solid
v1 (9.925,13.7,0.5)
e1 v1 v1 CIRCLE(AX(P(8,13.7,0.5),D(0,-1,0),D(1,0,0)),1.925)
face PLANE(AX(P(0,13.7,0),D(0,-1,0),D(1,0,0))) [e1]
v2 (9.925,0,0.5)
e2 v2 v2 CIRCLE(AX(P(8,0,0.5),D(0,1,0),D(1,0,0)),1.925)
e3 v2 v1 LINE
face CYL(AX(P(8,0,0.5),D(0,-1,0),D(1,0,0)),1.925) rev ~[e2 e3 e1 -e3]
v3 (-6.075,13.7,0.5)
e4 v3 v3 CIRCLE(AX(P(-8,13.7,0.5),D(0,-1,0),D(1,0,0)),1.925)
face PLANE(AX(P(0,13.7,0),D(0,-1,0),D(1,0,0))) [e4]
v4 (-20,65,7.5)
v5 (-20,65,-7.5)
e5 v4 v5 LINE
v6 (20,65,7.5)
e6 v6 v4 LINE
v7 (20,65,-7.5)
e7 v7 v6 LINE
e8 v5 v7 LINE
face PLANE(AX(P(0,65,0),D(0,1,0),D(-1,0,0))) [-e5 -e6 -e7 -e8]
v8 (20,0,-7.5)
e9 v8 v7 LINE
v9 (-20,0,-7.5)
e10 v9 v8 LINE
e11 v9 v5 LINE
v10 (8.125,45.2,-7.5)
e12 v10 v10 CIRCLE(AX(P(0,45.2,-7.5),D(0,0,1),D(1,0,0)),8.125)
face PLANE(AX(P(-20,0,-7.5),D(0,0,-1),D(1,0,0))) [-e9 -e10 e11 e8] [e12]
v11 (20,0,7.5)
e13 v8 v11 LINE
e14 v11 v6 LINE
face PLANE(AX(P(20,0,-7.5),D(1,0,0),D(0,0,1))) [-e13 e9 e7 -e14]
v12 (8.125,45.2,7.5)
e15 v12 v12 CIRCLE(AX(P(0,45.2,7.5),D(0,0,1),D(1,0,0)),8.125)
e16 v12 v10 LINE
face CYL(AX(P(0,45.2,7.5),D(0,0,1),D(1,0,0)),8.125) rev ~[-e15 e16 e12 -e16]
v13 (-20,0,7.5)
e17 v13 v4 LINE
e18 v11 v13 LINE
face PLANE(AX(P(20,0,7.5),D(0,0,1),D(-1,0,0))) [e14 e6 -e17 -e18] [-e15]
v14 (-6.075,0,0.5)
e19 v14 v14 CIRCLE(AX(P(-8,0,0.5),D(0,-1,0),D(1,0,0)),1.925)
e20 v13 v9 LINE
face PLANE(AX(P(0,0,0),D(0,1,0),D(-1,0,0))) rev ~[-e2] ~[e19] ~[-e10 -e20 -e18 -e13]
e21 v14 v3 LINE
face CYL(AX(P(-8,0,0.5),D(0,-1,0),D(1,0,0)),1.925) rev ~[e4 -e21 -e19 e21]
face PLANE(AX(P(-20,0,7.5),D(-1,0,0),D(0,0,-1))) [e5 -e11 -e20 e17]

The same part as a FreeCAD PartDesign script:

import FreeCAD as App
import Part
import Sketcher
from FreeCAD import Vector
Q = App.Units.Quantity

doc = App.newDocument("Part")
params = doc.addObject("Spreadsheet::Sheet", "Params")
for row, (alias, value) in enumerate([
    ("sketch1_width", "40 mm"),
    ("sketch1_height", "15 mm"),
    ("pad1_length", "65 mm"),
    ("sketch2_diameter", "3.85 mm"),
    ("pocket1_length", "13.7 mm"),
    ("sketch3_diameter", "16.25 mm"),
    ("pocket2_length", "20 mm"),
], start=1):
    params.set(f"A{row}", alias)
    params.set(f"B{row}", "=" + value)
    params.setAlias(f"B{row}", alias)

body = doc.addObject("PartDesign::Body", "Body")

# Sketch on XZ plane
sketch1 = doc.addObject("Sketcher::SketchObject", "Sketch")
body.addObject(sketch1)
sketch1.AttachmentSupport = (doc.XZ_Plane, [""])
sketch1.MapMode = "FlatFace"
sketch1.addGeometry([
    Part.LineSegment(Vector(20, -7.5, 0), Vector(-20, -7.5, 0)),
    Part.LineSegment(Vector(-20, -7.5, 0), Vector(-20, 7.5, 0)),
    Part.LineSegment(Vector(-20, 7.5, 0), Vector(20, 7.5, 0)),
    Part.LineSegment(Vector(20, 7.5, 0), Vector(20, -7.5, 0)),
], False)
sketch1.addConstraint([
    Sketcher.Constraint("Coincident", 0, 2, 1, 1),
    Sketcher.Constraint("Coincident", 1, 2, 2, 1),
    Sketcher.Constraint("Coincident", 2, 2, 3, 1),
    Sketcher.Constraint("Coincident", 3, 2, 0, 1),
    Sketcher.Constraint("Horizontal", 0),
    Sketcher.Constraint("Vertical", 1),
    Sketcher.Constraint("Horizontal", 2),
    Sketcher.Constraint("Vertical", 3),
    Sketcher.Constraint("Symmetric", 0, 2, 2, 2, -1, 1),
    Sketcher.Constraint("DistanceX", 0, 2, 0, 1, Q("40 mm")),
    Sketcher.Constraint("DistanceY", 1, 1, 1, 2, Q("15 mm")),
])
sketch1.setExpression("Constraints[9]", "Params.sketch1_width")
sketch1.setExpression("Constraints[10]", "Params.sketch1_height")
pad1 = doc.addObject("PartDesign::Pad", "Pad")
body.addObject(pad1)
pad1.Profile = sketch1
pad1.setExpression("Length", "Params.pad1_length")
pad1.Reversed = True

# Sketch on XZ plane
sketch2 = doc.addObject("Sketcher::SketchObject", "Sketch001")
body.addObject(sketch2)
sketch2.AttachmentSupport = (doc.XZ_Plane, [""])
sketch2.MapMode = "FlatFace"
sketch2.addGeometry([
    Part.Circle(Vector(8, 0.5, 0), Vector(0, 0, 1), 1.925),
    Part.Circle(Vector(-8, 0.5, 0), Vector(0, 0, 1), 1.925),
], False)
sketch2.addConstraint([
    Sketcher.Constraint("Equal", 0, 1),
    Sketcher.Constraint("Symmetric", 0, 3, 1, 3, -2),
    Sketcher.Constraint("Diameter", 0, Q("3.85 mm")),
    Sketcher.Constraint("DistanceX", -1, 1, 0, 3, Q("8 mm")),
    Sketcher.Constraint("DistanceY", -1, 1, 0, 3, Q("0.5 mm")),
])
sketch2.setExpression("Constraints[2]", "Params.sketch2_diameter")
pocket1 = doc.addObject("PartDesign::Pocket", "Pocket")
body.addObject(pocket1)
pocket1.Profile = sketch2
pocket1.setExpression("Length", "Params.pocket1_length")

# Sketch on XY plane
sketch3 = doc.addObject("Sketcher::SketchObject", "Sketch002")
body.addObject(sketch3)
sketch3.AttachmentSupport = (doc.XY_Plane, [""])
sketch3.MapMode = "FlatFace"
sketch3.AttachmentOffset = App.Placement(Vector(0, 0, 7.5), App.Rotation())
sketch3.addGeometry(Part.Circle(Vector(0, 45.2, 0), Vector(0, 0, 1), 8.125), False)
sketch3.addConstraint([
    Sketcher.Constraint("PointOnObject", 0, 3, -2),
    Sketcher.Constraint("Diameter", 0, Q("16.25 mm")),
    Sketcher.Constraint("DistanceY", -1, 1, 0, 3, Q("45.2 mm")),
])
sketch3.setExpression("Constraints[1]", "Params.sketch3_diameter")
pocket2 = doc.addObject("PartDesign::Pocket", "Pocket001")
body.addObject(pocket2)
pocket2.Profile = sketch3
pocket2.setExpression("Length", "Params.pocket2_length")

doc.recompute()
